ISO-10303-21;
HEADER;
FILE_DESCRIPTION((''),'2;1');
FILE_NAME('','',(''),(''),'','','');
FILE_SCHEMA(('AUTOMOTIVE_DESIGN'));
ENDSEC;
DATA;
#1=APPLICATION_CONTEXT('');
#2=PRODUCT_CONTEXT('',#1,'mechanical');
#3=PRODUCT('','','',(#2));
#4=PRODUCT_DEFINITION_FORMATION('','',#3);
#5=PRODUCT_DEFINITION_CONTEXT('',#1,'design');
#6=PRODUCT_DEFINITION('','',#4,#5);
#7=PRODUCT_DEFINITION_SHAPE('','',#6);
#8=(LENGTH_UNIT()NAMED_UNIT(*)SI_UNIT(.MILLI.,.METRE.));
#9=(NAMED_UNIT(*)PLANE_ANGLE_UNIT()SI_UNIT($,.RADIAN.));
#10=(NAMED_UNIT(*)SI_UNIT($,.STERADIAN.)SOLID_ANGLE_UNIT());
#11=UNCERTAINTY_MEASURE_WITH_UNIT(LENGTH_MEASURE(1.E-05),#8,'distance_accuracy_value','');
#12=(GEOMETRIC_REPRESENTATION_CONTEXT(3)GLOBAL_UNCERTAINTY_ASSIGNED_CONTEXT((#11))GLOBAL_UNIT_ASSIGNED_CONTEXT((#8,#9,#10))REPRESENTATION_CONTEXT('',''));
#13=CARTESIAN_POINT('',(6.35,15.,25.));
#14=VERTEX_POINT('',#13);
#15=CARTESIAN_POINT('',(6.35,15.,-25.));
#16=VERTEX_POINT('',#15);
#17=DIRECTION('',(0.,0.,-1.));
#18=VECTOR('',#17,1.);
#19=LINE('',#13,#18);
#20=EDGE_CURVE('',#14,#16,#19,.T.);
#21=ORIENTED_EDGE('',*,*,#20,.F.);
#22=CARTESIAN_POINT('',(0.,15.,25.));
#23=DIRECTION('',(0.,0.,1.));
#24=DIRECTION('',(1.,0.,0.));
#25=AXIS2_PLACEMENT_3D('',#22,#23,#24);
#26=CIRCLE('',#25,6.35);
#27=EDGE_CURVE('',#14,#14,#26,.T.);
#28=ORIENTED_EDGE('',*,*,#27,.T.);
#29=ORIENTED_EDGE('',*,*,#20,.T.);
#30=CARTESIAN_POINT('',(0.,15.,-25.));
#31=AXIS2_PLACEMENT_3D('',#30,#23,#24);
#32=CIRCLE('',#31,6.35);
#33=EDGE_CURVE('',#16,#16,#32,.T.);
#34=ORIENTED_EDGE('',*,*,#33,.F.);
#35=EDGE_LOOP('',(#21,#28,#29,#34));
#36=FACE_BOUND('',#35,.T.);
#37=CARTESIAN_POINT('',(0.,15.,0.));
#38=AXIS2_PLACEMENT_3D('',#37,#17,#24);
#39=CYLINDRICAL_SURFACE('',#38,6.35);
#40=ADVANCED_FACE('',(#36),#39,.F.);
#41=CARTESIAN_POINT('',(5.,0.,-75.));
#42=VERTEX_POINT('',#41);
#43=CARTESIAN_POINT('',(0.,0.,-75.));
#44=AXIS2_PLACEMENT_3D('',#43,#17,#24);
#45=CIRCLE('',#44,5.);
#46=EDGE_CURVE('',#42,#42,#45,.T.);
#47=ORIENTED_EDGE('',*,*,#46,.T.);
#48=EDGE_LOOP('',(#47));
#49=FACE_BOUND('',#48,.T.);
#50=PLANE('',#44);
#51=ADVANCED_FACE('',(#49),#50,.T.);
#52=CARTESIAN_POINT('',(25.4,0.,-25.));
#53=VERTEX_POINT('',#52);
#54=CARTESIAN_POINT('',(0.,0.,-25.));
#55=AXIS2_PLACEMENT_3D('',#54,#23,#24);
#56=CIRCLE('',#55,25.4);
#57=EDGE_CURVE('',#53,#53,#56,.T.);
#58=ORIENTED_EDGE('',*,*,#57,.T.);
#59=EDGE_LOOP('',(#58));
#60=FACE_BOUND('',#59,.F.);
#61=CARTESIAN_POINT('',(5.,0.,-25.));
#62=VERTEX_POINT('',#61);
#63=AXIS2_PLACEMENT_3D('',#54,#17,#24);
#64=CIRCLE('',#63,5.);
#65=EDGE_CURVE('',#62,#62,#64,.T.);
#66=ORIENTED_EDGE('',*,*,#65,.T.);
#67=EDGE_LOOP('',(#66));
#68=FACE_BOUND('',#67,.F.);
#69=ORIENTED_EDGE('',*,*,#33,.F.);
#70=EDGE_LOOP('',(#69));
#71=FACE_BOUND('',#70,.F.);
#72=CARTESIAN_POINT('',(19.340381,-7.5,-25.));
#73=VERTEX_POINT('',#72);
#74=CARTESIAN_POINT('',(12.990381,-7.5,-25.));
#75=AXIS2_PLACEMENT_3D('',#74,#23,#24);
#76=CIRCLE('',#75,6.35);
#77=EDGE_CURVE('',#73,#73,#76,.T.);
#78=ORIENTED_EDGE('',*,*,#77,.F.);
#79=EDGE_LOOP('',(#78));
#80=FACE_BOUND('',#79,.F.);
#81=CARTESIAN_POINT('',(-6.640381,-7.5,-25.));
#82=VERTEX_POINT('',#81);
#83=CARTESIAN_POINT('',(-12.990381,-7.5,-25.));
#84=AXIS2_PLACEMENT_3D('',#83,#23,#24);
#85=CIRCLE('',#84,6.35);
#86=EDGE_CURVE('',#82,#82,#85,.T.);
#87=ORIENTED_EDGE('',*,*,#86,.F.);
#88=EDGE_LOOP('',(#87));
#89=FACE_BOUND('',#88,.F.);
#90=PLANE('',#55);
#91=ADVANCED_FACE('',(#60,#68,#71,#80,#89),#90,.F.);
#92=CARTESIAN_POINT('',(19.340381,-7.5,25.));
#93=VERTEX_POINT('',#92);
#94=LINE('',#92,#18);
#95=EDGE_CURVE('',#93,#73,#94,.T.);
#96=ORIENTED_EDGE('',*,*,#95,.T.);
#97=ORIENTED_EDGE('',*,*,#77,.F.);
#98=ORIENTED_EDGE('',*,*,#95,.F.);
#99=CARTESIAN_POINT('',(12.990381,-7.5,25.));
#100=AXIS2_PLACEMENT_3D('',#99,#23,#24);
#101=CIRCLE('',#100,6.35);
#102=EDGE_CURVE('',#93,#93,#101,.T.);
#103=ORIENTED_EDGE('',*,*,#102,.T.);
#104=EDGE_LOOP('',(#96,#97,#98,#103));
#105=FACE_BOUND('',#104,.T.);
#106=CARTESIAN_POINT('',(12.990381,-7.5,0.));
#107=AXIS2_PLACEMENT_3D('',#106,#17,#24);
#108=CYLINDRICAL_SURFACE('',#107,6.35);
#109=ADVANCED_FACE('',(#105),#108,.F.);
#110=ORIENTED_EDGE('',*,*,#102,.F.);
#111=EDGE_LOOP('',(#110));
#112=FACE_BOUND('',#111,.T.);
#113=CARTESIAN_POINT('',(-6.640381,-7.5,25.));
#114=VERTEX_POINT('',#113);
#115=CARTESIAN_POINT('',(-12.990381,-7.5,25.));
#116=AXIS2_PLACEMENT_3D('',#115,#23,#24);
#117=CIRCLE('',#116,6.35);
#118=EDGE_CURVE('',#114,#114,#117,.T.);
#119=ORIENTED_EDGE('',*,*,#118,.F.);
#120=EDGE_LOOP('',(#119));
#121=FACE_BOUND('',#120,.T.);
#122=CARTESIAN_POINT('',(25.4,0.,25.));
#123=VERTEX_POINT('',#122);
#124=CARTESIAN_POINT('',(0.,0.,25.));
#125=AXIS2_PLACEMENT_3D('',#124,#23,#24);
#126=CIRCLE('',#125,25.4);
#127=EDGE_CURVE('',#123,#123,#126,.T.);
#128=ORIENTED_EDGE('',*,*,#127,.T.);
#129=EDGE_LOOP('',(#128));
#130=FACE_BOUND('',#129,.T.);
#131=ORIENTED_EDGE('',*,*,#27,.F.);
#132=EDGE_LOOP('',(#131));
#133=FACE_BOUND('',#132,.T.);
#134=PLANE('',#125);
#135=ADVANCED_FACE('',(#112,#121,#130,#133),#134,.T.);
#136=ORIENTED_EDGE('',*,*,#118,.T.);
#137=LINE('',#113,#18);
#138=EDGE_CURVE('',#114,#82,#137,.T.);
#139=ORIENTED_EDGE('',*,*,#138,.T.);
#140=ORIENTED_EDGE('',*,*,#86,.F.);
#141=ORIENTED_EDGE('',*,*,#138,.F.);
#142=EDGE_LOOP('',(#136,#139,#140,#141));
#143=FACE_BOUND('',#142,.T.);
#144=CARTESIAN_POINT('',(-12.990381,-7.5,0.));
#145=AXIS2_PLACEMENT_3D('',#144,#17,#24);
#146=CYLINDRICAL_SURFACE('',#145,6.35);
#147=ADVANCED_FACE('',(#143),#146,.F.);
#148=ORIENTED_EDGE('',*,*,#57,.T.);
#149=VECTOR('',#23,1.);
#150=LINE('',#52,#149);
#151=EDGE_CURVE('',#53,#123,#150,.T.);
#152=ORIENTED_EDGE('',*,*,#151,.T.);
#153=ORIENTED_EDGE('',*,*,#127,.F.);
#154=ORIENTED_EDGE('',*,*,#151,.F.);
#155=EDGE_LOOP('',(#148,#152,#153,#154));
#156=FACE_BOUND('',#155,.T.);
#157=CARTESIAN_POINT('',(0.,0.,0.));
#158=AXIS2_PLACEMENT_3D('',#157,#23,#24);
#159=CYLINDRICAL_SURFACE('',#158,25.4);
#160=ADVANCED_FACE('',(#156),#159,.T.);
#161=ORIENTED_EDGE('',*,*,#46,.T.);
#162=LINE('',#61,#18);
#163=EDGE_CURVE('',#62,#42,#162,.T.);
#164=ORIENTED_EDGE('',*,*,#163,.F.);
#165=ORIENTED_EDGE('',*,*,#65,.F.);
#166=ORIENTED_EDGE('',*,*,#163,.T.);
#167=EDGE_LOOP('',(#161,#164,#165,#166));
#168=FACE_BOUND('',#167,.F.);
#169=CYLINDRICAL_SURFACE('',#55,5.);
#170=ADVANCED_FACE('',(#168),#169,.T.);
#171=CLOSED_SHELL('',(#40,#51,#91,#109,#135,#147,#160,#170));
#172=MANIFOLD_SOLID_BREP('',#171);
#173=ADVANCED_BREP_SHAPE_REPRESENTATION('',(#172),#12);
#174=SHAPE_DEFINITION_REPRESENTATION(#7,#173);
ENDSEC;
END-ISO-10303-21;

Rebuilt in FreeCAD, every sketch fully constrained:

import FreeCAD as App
import Part
import Sketcher
from FreeCAD import Vector

doc = App.newDocument("Part")
body = doc.addObject("PartDesign::Body", "Body")

sketch1 = body.newObject("Sketcher::SketchObject", "Sketch")
sketch1.AttachmentSupport = (doc.getObject("XY_Plane"), [""])
sketch1.MapMode = "FlatFace"
sketch1.addGeometry([
    Part.Circle(Vector(0, 0, 0), Vector(0, 0, 1), 25),
    Part.Circle(Vector(-13, -8, 0), Vector(0, 0, 1), 6),
    Part.Circle(Vector(13, -8, 0), Vector(0, 0, 1), 6),
    Part.Circle(Vector(0, 15, 0), Vector(0, 0, 1), 6),
], False)
sketch1.addConstraint([
    Sketcher.Constraint("Coincident", 0, 3, -1, 1),
    Sketcher.Constraint("Equal", 1, 2),
    Sketcher.Constraint("Equal", 2, 3),
    Sketcher.Constraint("Symmetric", 1, 3, 2, 3, -2),
    Sketcher.Constraint("PointOnObject", 3, 3, -2),
    Sketcher.Constraint("Diameter", 0, 50.8),
    Sketcher.Constraint("Diameter", 1, 12.7),
    Sketcher.Constraint("DistanceY", -1, 1, 3, 3, 15.0),
    Sketcher.Constraint("DistanceY", 1, 3, -1, 1, 7.5),
    Sketcher.Constraint("DistanceX", 1, 3, -1, 1, 12.990381),
])
pad1 = body.newObject("PartDesign::Pad", "Pad")
pad1.Profile = sketch1
pad1.Length = 50
pad1.Midplane = True

sketch2 = body.newObject("Sketcher::SketchObject", "Sketch001")
sketch2.AttachmentSupport = (doc.getObject("XY_Plane"), [""])
sketch2.MapMode = "FlatFace"
sketch2.AttachmentOffset = App.Placement(Vector(0, 0, -25), App.Rotation())
sketch2.addGeometry(Part.Circle(Vector(0, 0, 0), Vector(0, 0, 1), 5), False)
sketch2.addConstraint([
    Sketcher.Constraint("Coincident", 0, 3, -1, 1),
    Sketcher.Constraint("Diameter", 0, 10.0),
])
pad2 = body.newObject("PartDesign::Pad", "Pad001")
pad2.Profile = sketch2
pad2.Length = 50
pad2.Reversed = True

doc.recompute()
